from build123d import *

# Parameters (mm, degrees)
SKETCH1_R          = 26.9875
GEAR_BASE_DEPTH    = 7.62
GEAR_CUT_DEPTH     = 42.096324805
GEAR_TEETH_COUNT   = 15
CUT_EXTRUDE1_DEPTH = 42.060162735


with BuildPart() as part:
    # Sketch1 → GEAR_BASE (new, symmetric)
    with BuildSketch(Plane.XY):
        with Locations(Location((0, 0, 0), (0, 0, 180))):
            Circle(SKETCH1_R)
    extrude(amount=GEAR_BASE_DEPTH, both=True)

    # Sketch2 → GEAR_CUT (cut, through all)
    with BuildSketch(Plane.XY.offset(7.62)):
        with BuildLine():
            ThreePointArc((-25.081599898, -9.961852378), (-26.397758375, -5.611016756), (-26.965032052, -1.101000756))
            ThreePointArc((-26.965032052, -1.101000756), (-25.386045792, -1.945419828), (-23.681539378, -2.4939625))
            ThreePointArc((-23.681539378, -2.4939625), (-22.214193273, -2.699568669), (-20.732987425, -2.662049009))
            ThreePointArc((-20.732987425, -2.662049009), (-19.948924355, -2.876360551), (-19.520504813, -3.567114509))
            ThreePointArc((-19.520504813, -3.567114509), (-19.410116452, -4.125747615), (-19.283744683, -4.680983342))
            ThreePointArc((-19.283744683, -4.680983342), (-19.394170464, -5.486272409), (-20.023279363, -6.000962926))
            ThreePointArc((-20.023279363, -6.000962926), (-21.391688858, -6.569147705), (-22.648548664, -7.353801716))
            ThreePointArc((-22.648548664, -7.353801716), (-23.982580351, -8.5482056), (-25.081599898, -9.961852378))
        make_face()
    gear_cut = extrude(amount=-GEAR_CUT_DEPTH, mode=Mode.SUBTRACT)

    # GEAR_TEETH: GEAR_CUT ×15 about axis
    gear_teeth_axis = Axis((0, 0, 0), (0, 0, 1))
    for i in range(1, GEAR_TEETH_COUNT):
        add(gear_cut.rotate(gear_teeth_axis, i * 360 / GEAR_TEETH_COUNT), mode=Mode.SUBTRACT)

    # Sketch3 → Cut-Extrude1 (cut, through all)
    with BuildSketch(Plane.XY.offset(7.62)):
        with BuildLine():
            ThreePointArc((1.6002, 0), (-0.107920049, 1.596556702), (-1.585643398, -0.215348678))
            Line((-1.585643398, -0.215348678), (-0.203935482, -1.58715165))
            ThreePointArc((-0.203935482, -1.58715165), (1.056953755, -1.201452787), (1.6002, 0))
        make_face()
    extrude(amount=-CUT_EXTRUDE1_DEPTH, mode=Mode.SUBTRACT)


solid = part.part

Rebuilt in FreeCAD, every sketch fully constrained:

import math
import FreeCAD as App
import Part
import Sketcher

V = App.Vector
Q = App.Units.Quantity

doc = App.newDocument("Part")
body = doc.addObject("PartDesign::Body", "Body")

# Sketch on XY plane
sketch1 = body.newObject("Sketcher::SketchObject", "Sketch")
sketch1.AttachmentSupport = (doc.getObject("XY_Plane"), [""])
sketch1.MapMode = "FlatFace"
sketch1.addGeometry(Part.Circle(V(0, 0, 0), V(0, 0, 1), 27), False)
sketch1.addConstraint(Sketcher.Constraint("Coincident", 0, 3, -1, 1))
sketch1.addConstraint(Sketcher.Constraint("Diameter", 0, Q("2.125 in")))
pad1 = body.newObject("PartDesign::Pad", "Pad")
pad1.Profile = sketch1
pad1.Length = Q("0.6 in")
pad1.Midplane = True

# Sketch on XY plane
sketch2 = body.newObject("Sketcher::SketchObject", "Sketch001")
sketch2.AttachmentSupport = (doc.getObject("XY_Plane"), [""])
sketch2.MapMode = "FlatFace"
sketch2.AttachmentOffset = App.Placement(V(0, 0, 0.3 * 25.4), App.Rotation())
sketch2.addGeometry(Part.ArcOfCircle(Part.Circle(V(0, 0, 0), V(0, 0, 1), 27), math.radians(-177.66), math.radians(-158.34)), False)
sketch2.addGeometry(Part.ArcOfCircle(Part.Circle(V(-16.7, -15.4, 0), V(0, 0, 1), 10), math.radians(127), math.radians(147)), False)
sketch2.addGeometry(Part.ArcOfCircle(Part.Circle(V(-17.3, -14.6, 0), V(0, 0, 1), 9), math.radians(107.84), math.radians(126.69)), False)
sketch2.addGeometry(Part.ArcOfCircle(Part.Circle(V(-20.4, -4.9, 0), V(0, 0, 1), 1.1), math.radians(-72), math.radians(14)), False)
sketch2.addGeometry(Part.ArcOfCircle(Part.Circle(V(0, 0, 0), V(0, 0, 1), 19.8), math.radians(-169.64), math.radians(-166.36)), False)
sketch2.addGeometry(Part.ArcOfCircle(Part.Circle(V(-20.6, -3.8, 0), V(0, 0, 1), 1.1), math.radians(10), math.radians(96)), False)
sketch2.addGeometry(Part.ArcOfCircle(Part.Circle(V(-21.7, 6.3, 0), V(0, 0, 1), 9), math.radians(-102.69), math.radians(-83.84)), False)
sketch2.addGeometry(Part.ArcOfCircle(Part.Circle(V(-21.5, 7.2, 0), V(0, 0, 1), 10), math.radians(-123), math.radians(-103)), False)
sketch2.addConstraint(Sketcher.Constraint("Coincident", 0, 2, 1, 2))
sketch2.addConstraint(Sketcher.Constraint("Tangent", 1, 1, 2, 2))
sketch2.addConstraint(Sketcher.Constraint("Tangent", 2, 1, 3, 1))
sketch2.addConstraint(Sketcher.Constraint("Tangent", 3, 2, 4, 2))
sketch2.addConstraint(Sketcher.Constraint("Tangent", 4, 1, 5, 1))
sketch2.addConstraint(Sketcher.Constraint("Tangent", 5, 2, 6, 2))
sketch2.addConstraint(Sketcher.Constraint("Tangent", 6, 1, 7, 2))
sketch2.addConstraint(Sketcher.Constraint("Coincident", 7, 1, 0, 1))
sketch2.addConstraint(Sketcher.Constraint("Coincident", 0, 3, -1, 1))
sketch2.addConstraint(Sketcher.Constraint("Coincident", 4, 3, -1, 1))
sketch2.addConstraint(Sketcher.Constraint("Equal", 3, 5))
sketch2.addConstraint(Sketcher.Constraint("Equal", 2, 6))
sketch2.addConstraint(Sketcher.Constraint("Equal", 1, 7))
sketch2.addConstraint(Sketcher.Constraint("Radius", 0, Q("1.0625 in")))
sketch2.addConstraint(Sketcher.Constraint("Radius", 4, Q("0.78125 in")))
sketch2.addConstraint(Sketcher.Constraint("Radius", 1, Q("9.97585 mm")))
sketch2.addConstraint(Sketcher.Constraint("Radius", 3, Q("1.11125 mm")))
sketch2.addConstraint(Sketcher.Constraint("Radius", 2, Q("9.015167 mm")))
sketch2.addConstraint(Sketcher.Constraint("DistanceX", 3, 3, 2, 1, Q("0.0133998 in")))
sketch2.addConstraint(Sketcher.Constraint("DistanceY", -1, 1, 7, 3, Q("7.238201 mm")))
sketch2.addConstraint(Sketcher.Constraint("DistanceX", 0, 2, -1, 1, Q("25.0816 mm")))
sketch2.addConstraint(Sketcher.Constraint("DistanceY", 1, 1, -1, 1, Q("7.353802 mm")))
sketch2.addConstraint(Sketcher.Constraint("DistanceY", 7, 1, -1, 1, Q("1.101001 mm")))
sketch2.addConstraint(Sketcher.Constraint("DistanceX", 6, 3, 2, 3, Q("4.439001 mm")))
pocket1 = body.newObject("PartDesign::Pocket", "Pocket")
pocket1.Profile = sketch2
pocket1.Type = "ThroughAll"
doc.recompute()

polarpattern = body.newObject("PartDesign::PolarPattern", "PolarPattern")
polarpattern.Originals = [pocket1]
polarpattern.Axis = (doc.getObject("Z_Axis"), [""])
polarpattern.Angle = 360
polarpattern.Occurrences = 15
body.Tip = polarpattern

# Sketch on XY plane
sketch3 = body.newObject("Sketcher::SketchObject", "Sketch002")
sketch3.AttachmentSupport = (doc.getObject("XY_Plane"), [""])
sketch3.MapMode = "FlatFace"
sketch3.AttachmentOffset = App.Placement(V(0, 0, 0.3 * 25.4), App.Rotation())
sketch3.addGeometry(Part.ArcOfCircle(Part.Circle(V(0, 0, 0), V(0, 0, 1), 1.6), math.radians(0), math.radians(188)), False)
sketch3.addGeometry(Part.LineSegment(V(-1.6, -0.2, 0), V(-0.2, -1.6, 0)), False)
sketch3.addGeometry(Part.ArcOfCircle(Part.Circle(V(0, 0, 0), V(0, 0, 1), 1.6), math.radians(-97), math.radians(0)), False)
sketch3.addConstraint(Sketcher.Constraint("Coincident", 0, 2, 1, 1))
sketch3.addConstraint(Sketcher.Constraint("Coincident", 1, 2, 2, 1))
sketch3.addConstraint(Sketcher.Constraint("Tangent", 2, 2, 0, 1))
sketch3.addConstraint(Sketcher.Constraint("Coincident", 0, 3, -1, 1))
sketch3.addConstraint(Sketcher.Constraint("Equal", 0, 2))
sketch3.addConstraint(Sketcher.Constraint("PointOnObject", 2, 2, -1))
sketch3.addConstraint(Sketcher.Constraint("Radius", 0, Q("0.063 in")))
sketch3.addConstraint(Sketcher.Constraint("Distance", 1, Q("1.947039 mm")))
sketch3.addConstraint(Sketcher.Constraint("DistanceY", 0, 2, -1, 1, Q("0.215349 mm")))
pocket2 = body.newObject("PartDesign::Pocket", "Pocket001")
pocket2.Profile = sketch3
pocket2.Type = "ThroughAll"

doc.recompute()
